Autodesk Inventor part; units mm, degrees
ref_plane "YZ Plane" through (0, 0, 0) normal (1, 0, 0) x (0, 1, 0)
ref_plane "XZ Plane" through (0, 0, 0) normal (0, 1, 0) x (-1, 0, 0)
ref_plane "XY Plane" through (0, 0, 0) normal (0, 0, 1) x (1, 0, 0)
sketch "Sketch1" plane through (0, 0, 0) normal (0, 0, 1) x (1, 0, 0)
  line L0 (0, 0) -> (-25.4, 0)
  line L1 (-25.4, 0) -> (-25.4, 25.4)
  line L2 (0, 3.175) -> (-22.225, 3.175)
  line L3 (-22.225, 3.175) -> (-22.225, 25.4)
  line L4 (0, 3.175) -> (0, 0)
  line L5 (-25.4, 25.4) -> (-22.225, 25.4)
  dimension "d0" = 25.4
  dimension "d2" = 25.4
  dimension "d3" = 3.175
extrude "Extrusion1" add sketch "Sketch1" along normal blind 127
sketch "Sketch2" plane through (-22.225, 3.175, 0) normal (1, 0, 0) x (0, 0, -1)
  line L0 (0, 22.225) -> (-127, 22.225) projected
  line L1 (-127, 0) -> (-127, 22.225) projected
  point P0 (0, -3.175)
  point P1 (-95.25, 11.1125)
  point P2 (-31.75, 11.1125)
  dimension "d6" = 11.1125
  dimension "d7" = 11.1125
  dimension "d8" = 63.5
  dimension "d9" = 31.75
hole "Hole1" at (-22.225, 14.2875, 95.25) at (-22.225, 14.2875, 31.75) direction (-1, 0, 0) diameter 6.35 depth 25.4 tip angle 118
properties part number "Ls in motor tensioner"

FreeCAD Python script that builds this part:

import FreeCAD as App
import Part
import Sketcher
Q = App.Units.Quantity

doc = App.newDocument("Part")
params = doc.addObject("Spreadsheet::Sheet", "Params")
for row, (alias, value) in enumerate([
    ("sketch1_width", "1 in"),
    ("sketch1_width2", "0.125 in"),
    ("pad1_length", "5 in"),
    ("sketch2_diameter", "0.25 in"),
    ("hole_diameter", "0.25 in"),
    ("hole_depth", "1 in"),
], start=1):
    params.set(f"A{row}", alias)
    params.set(f"B{row}", "=" + value)
    params.setAlias(f"B{row}", alias)

body = doc.addObject("PartDesign::Body", "Body")

sketch1 = body.newObject("Sketcher::SketchObject", "Sketch")
sketch1.AttachmentSupport = (doc.getObject("XY_Plane"), [""])
sketch1.MapMode = "FlatFace"
sketch1.addGeometry(Part.LineSegment(App.Vector(-25.4, 0, 0), App.Vector(0, 0, 0)), False)
sketch1.addGeometry(Part.LineSegment(App.Vector(0, 0, 0), App.Vector(0, 3.2, 0)), False)
sketch1.addGeometry(Part.LineSegment(App.Vector(0, 3.2, 0), App.Vector(-22.2, 3.2, 0)), False)
sketch1.addGeometry(Part.LineSegment(App.Vector(-22.2, 3.2, 0), App.Vector(-22.2, 25.4, 0)), False)
sketch1.addGeometry(Part.LineSegment(App.Vector(-22.2, 25.4, 0), App.Vector(-25.4, 25.4, 0)), False)
sketch1.addGeometry(Part.LineSegment(App.Vector(-25.4, 25.4, 0), App.Vector(-25.4, 0, 0)), False)
sketch1.addConstraint(Sketcher.Constraint("Coincident", 0, 2, 1, 1))
sketch1.addConstraint(Sketcher.Constraint("Coincident", 1, 2, 2, 1))
sketch1.addConstraint(Sketcher.Constraint("Coincident", 2, 2, 3, 1))
sketch1.addConstraint(Sketcher.Constraint("Coincident", 3, 2, 4, 1))
sketch1.addConstraint(Sketcher.Constraint("Coincident", 4, 2, 5, 1))
sketch1.addConstraint(Sketcher.Constraint("Coincident", 5, 2, 0, 1))
sketch1.addConstraint(Sketcher.Constraint("Horizontal", 0))
sketch1.addConstraint(Sketcher.Constraint("Vertical", 1))
sketch1.addConstraint(Sketcher.Constraint("Horizontal", 2))
sketch1.addConstraint(Sketcher.Constraint("Vertical", 3))
sketch1.addConstraint(Sketcher.Constraint("Horizontal", 4))
sketch1.addConstraint(Sketcher.Constraint("Vertical", 5))
sketch1.addConstraint(Sketcher.Constraint("Coincident", 0, 2, -1, 1))
sketch1.addConstraint(Sketcher.Constraint("Equal", 4, 1))
sketch1.addConstraint(Sketcher.Constraint("Equal", 2, 3))
sketch1.addConstraint(Sketcher.Constraint("DistanceX", 0, 1, 0, 2, Q("1 in")))
sketch1.addConstraint(Sketcher.Constraint("DistanceX", 4, 2, 4, 1, Q("0.125 in")))
sketch1.setExpression("Constraints[15]", "Params.sketch1_width")
sketch1.setExpression("Constraints[16]", "Params.sketch1_width2")
pad1 = body.newObject("PartDesign::Pad", "Pad")
pad1.Profile = sketch1
pad1.setExpression("Length", "Params.pad1_length")

sketch2 = body.newObject("Sketcher::SketchObject", "Sketch001")
sketch2.AttachmentSupport = (doc.getObject("YZ_Plane"), [""])
sketch2.MapMode = "FlatFace"
sketch2.AttachmentOffset = App.Placement(App.Vector(0, 0, -0.875 * 25.4), App.Rotation())
sketch2.addGeometry(Part.Circle(App.Vector(14.3, 95.2, 0), App.Vector(0, 0, 1), 3.2), False)
sketch2.addGeometry(Part.Circle(App.Vector(14.3, 31.8, 0), App.Vector(0, 0, 1), 3.2), False)
sketch2.addConstraint(Sketcher.Constraint("Equal", 0, 1))
sketch2.addConstraint(Sketcher.Constraint("Vertical", 0, 3, 1, 3))
sketch2.addConstraint(Sketcher.Constraint("Diameter", 0, Q("0.25 in")))
sketch2.addConstraint(Sketcher.Constraint("DistanceY", 1, 3, 0, 3, Q("2.5 in")))
sketch2.addConstraint(Sketcher.Constraint("DistanceY", -1, 1, 0, 3, Q("3.75 in")))
sketch2.addConstraint(Sketcher.Constraint("DistanceX", -1, 1, 0, 3, Q("0.5625 in")))
sketch2.setExpression("Constraints[2]", "Params.sketch2_diameter")
doc.recompute()
hole = body.newObject("PartDesign::Hole", "Hole")
hole.Profile = sketch2
hole.ThreadType = "None"
hole.setExpression("Diameter", "Params.hole_diameter")
hole.DepthType = "Dimension"
hole.setExpression("Depth", "Params.hole_depth")
hole.DrillPoint = "Angled"
hole.DrillPointAngle = 118

doc.recompute()
